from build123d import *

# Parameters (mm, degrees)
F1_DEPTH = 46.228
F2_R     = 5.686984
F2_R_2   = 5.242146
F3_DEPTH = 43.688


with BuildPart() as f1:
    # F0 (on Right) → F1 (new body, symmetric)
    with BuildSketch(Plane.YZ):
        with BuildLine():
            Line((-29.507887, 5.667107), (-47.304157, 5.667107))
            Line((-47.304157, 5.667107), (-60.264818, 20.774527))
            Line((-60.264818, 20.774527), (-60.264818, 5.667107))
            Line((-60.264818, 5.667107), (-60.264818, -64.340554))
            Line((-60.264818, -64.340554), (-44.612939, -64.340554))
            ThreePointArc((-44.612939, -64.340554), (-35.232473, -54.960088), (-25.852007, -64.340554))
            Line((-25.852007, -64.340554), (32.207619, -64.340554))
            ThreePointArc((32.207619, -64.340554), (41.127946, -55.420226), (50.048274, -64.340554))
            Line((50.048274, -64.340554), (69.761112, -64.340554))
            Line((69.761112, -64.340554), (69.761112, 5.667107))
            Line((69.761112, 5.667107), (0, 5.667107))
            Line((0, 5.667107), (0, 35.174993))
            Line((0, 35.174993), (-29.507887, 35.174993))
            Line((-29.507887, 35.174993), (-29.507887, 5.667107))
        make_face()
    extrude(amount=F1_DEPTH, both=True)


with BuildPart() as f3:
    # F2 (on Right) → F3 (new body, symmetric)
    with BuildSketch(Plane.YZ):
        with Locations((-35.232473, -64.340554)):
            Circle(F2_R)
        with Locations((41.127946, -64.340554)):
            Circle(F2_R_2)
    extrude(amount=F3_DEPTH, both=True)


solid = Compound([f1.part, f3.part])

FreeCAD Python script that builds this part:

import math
import FreeCAD as App
import Part
import Sketcher

V = App.Vector
Q = App.Units.Quantity

doc = App.newDocument("Part")
body = doc.addObject("PartDesign::Body", "Body")

# Sketch on YZ plane
sketch1 = body.newObject("Sketcher::SketchObject", "Sketch")
sketch1.AttachmentSupport = (doc.getObject("YZ_Plane"), [""])
sketch1.MapMode = "FlatFace"
sketch1.addGeometry([
    Part.LineSegment(V(-30, 6, 0), V(-47, 6, 0)),  # 0
    Part.LineSegment(V(-47, 6, 0), V(-60, 21, 0)),  # 1
    Part.LineSegment(V(-60, 21, 0), V(-60, -64, 0)),  # 2
    Part.LineSegment(V(-60, -64, 0), V(-45, -64, 0)),  # 3
    Part.ArcOfCircle(Part.Circle(V(-35, -64, 0), V(0, 0, 1), 9), math.radians(0), math.radians(180)),  # 4
    Part.LineSegment(V(-26, -64, 0), V(32, -64, 0)),  # 5
    Part.ArcOfCircle(Part.Circle(V(41, -64, 0), V(0, 0, 1), 9), math.radians(0), math.radians(180)),  # 6
    Part.LineSegment(V(50, -64, 0), V(70, -64, 0)),  # 7
    Part.LineSegment(V(70, -64, 0), V(70, 6, 0)),  # 8
    Part.LineSegment(V(70, 6, 0), V(0, 6, 0)),  # 9
    Part.LineSegment(V(0, 6, 0), V(0, 35, 0)),  # 10
    Part.LineSegment(V(0, 35, 0), V(-30, 35, 0)),  # 11
    Part.LineSegment(V(-30, 35, 0), V(-30, 6, 0)),  # 12
], False)
sketch1.addConstraint([
    Sketcher.Constraint("Coincident", 0, 2, 1, 1),
    Sketcher.Constraint("Coincident", 1, 2, 2, 1),
    Sketcher.Constraint("Coincident", 2, 2, 3, 1),
    Sketcher.Constraint("Coincident", 3, 2, 4, 2),
    Sketcher.Constraint("Coincident", 4, 1, 5, 1),
    Sketcher.Constraint("Coincident", 5, 2, 6, 2),
    Sketcher.Constraint("Coincident", 6, 1, 7, 1),
    Sketcher.Constraint("Coincident", 7, 2, 8, 1),
    Sketcher.Constraint("Coincident", 8, 2, 9, 1),
    Sketcher.Constraint("Coincident", 9, 2, 10, 1),
    Sketcher.Constraint("Coincident", 10, 2, 11, 1),
    Sketcher.Constraint("Coincident", 11, 2, 12, 1),
    Sketcher.Constraint("Coincident", 12, 2, 0, 1),
    Sketcher.Constraint("Horizontal", 0),
    Sketcher.Constraint("Vertical", 2),
    Sketcher.Constraint("Horizontal", 3),
    Sketcher.Constraint("Horizontal", 5),
    Sketcher.Constraint("Horizontal", 7),
    Sketcher.Constraint("Vertical", 8),
    Sketcher.Constraint("Horizontal", 9),
    Sketcher.Constraint("Vertical", 10),
    Sketcher.Constraint("Horizontal", 11),
    Sketcher.Constraint("Vertical", 12),
    Sketcher.Constraint("PointOnObject", 9, 2, -2),
    Sketcher.Constraint("Horizontal", 4, 3, 6, 3),
    Sketcher.Constraint("Horizontal", 6, 3, 2, 2),
    Sketcher.Constraint("Horizontal", 3, 2, 4, 1),
    Sketcher.Constraint("Horizontal", 5, 2, 6, 1),
    Sketcher.Constraint("Horizontal", 0, 2, 8, 2),
    Sketcher.Constraint("Equal", 11, 10),
    Sketcher.Constraint("Radius", 4, Q("9.380466 mm")),
    Sketcher.Constraint("Radius", 6, Q("8.920328 mm")),
    Sketcher.Constraint("DistanceX", 4, 1, 6, 1, Q("2.9882 in")),
    Sketcher.Constraint("DistanceX", 0, 2, 0, 1, Q("17.79627 mm")),
    Sketcher.Constraint("DistanceX", 3, 1, 3, 2, Q("15.651879 mm")),
    Sketcher.Constraint("DistanceX", 9, 2, 9, 1, Q("69.761112 mm")),
    Sketcher.Constraint("DistanceY", 2, 2, 2, 1, Q("85.115081 mm")),
    Sketcher.Constraint("DistanceY", 8, 1, 8, 2, Q("70.007661 mm")),
    Sketcher.Constraint("DistanceX", 7, 1, 7, 2, Q("19.712838 mm")),
    Sketcher.Constraint("DistanceX", 11, 2, 11, 1, Q("29.507887 mm")),
    Sketcher.Constraint("DistanceY", 4, 3, -1, 1, Q("64.340554 mm")),
])
pad1 = body.newObject("PartDesign::Pad", "Pad")
pad1.Profile = sketch1
pad1.Length = Q("3.64 in")
pad1.Midplane = True
body2 = doc.addObject("PartDesign::Body", "Body001")
body2.AllowCompound = True

# Sketch on YZ plane
sketch2 = body2.newObject("Sketcher::SketchObject", "Sketch001")
sketch2.AttachmentSupport = (doc.getObject("YZ_Plane001"), [""])
sketch2.MapMode = "FlatFace"
sketch2.addGeometry([
    Part.Circle(V(-35, -64, 0), V(0, 0, 1), 6),
    Part.Circle(V(41, -64, 0), V(0, 0, 1), 5),
], False)
sketch2.addConstraint([
    Sketcher.Constraint("Horizontal", 0, 3, 1, 3),
    Sketcher.Constraint("Diameter", 0, Q("11.373968 mm")),
    Sketcher.Constraint("Diameter", 1, Q("10.484292 mm")),
    Sketcher.Constraint("DistanceX", 0, 3, 1, 3, Q("76.360419 mm")),
    Sketcher.Constraint("DistanceX", 0, 3, -1, 1, Q("35.232473 mm")),
    Sketcher.Constraint("DistanceY", 0, 3, -1, 1, Q("64.340554 mm")),
])
pad2 = body2.newObject("PartDesign::Pad", "Pad001")
pad2.Profile = sketch2
pad2.Length = Q("3.44 in")
pad2.Midplane = True

doc.recompute()
